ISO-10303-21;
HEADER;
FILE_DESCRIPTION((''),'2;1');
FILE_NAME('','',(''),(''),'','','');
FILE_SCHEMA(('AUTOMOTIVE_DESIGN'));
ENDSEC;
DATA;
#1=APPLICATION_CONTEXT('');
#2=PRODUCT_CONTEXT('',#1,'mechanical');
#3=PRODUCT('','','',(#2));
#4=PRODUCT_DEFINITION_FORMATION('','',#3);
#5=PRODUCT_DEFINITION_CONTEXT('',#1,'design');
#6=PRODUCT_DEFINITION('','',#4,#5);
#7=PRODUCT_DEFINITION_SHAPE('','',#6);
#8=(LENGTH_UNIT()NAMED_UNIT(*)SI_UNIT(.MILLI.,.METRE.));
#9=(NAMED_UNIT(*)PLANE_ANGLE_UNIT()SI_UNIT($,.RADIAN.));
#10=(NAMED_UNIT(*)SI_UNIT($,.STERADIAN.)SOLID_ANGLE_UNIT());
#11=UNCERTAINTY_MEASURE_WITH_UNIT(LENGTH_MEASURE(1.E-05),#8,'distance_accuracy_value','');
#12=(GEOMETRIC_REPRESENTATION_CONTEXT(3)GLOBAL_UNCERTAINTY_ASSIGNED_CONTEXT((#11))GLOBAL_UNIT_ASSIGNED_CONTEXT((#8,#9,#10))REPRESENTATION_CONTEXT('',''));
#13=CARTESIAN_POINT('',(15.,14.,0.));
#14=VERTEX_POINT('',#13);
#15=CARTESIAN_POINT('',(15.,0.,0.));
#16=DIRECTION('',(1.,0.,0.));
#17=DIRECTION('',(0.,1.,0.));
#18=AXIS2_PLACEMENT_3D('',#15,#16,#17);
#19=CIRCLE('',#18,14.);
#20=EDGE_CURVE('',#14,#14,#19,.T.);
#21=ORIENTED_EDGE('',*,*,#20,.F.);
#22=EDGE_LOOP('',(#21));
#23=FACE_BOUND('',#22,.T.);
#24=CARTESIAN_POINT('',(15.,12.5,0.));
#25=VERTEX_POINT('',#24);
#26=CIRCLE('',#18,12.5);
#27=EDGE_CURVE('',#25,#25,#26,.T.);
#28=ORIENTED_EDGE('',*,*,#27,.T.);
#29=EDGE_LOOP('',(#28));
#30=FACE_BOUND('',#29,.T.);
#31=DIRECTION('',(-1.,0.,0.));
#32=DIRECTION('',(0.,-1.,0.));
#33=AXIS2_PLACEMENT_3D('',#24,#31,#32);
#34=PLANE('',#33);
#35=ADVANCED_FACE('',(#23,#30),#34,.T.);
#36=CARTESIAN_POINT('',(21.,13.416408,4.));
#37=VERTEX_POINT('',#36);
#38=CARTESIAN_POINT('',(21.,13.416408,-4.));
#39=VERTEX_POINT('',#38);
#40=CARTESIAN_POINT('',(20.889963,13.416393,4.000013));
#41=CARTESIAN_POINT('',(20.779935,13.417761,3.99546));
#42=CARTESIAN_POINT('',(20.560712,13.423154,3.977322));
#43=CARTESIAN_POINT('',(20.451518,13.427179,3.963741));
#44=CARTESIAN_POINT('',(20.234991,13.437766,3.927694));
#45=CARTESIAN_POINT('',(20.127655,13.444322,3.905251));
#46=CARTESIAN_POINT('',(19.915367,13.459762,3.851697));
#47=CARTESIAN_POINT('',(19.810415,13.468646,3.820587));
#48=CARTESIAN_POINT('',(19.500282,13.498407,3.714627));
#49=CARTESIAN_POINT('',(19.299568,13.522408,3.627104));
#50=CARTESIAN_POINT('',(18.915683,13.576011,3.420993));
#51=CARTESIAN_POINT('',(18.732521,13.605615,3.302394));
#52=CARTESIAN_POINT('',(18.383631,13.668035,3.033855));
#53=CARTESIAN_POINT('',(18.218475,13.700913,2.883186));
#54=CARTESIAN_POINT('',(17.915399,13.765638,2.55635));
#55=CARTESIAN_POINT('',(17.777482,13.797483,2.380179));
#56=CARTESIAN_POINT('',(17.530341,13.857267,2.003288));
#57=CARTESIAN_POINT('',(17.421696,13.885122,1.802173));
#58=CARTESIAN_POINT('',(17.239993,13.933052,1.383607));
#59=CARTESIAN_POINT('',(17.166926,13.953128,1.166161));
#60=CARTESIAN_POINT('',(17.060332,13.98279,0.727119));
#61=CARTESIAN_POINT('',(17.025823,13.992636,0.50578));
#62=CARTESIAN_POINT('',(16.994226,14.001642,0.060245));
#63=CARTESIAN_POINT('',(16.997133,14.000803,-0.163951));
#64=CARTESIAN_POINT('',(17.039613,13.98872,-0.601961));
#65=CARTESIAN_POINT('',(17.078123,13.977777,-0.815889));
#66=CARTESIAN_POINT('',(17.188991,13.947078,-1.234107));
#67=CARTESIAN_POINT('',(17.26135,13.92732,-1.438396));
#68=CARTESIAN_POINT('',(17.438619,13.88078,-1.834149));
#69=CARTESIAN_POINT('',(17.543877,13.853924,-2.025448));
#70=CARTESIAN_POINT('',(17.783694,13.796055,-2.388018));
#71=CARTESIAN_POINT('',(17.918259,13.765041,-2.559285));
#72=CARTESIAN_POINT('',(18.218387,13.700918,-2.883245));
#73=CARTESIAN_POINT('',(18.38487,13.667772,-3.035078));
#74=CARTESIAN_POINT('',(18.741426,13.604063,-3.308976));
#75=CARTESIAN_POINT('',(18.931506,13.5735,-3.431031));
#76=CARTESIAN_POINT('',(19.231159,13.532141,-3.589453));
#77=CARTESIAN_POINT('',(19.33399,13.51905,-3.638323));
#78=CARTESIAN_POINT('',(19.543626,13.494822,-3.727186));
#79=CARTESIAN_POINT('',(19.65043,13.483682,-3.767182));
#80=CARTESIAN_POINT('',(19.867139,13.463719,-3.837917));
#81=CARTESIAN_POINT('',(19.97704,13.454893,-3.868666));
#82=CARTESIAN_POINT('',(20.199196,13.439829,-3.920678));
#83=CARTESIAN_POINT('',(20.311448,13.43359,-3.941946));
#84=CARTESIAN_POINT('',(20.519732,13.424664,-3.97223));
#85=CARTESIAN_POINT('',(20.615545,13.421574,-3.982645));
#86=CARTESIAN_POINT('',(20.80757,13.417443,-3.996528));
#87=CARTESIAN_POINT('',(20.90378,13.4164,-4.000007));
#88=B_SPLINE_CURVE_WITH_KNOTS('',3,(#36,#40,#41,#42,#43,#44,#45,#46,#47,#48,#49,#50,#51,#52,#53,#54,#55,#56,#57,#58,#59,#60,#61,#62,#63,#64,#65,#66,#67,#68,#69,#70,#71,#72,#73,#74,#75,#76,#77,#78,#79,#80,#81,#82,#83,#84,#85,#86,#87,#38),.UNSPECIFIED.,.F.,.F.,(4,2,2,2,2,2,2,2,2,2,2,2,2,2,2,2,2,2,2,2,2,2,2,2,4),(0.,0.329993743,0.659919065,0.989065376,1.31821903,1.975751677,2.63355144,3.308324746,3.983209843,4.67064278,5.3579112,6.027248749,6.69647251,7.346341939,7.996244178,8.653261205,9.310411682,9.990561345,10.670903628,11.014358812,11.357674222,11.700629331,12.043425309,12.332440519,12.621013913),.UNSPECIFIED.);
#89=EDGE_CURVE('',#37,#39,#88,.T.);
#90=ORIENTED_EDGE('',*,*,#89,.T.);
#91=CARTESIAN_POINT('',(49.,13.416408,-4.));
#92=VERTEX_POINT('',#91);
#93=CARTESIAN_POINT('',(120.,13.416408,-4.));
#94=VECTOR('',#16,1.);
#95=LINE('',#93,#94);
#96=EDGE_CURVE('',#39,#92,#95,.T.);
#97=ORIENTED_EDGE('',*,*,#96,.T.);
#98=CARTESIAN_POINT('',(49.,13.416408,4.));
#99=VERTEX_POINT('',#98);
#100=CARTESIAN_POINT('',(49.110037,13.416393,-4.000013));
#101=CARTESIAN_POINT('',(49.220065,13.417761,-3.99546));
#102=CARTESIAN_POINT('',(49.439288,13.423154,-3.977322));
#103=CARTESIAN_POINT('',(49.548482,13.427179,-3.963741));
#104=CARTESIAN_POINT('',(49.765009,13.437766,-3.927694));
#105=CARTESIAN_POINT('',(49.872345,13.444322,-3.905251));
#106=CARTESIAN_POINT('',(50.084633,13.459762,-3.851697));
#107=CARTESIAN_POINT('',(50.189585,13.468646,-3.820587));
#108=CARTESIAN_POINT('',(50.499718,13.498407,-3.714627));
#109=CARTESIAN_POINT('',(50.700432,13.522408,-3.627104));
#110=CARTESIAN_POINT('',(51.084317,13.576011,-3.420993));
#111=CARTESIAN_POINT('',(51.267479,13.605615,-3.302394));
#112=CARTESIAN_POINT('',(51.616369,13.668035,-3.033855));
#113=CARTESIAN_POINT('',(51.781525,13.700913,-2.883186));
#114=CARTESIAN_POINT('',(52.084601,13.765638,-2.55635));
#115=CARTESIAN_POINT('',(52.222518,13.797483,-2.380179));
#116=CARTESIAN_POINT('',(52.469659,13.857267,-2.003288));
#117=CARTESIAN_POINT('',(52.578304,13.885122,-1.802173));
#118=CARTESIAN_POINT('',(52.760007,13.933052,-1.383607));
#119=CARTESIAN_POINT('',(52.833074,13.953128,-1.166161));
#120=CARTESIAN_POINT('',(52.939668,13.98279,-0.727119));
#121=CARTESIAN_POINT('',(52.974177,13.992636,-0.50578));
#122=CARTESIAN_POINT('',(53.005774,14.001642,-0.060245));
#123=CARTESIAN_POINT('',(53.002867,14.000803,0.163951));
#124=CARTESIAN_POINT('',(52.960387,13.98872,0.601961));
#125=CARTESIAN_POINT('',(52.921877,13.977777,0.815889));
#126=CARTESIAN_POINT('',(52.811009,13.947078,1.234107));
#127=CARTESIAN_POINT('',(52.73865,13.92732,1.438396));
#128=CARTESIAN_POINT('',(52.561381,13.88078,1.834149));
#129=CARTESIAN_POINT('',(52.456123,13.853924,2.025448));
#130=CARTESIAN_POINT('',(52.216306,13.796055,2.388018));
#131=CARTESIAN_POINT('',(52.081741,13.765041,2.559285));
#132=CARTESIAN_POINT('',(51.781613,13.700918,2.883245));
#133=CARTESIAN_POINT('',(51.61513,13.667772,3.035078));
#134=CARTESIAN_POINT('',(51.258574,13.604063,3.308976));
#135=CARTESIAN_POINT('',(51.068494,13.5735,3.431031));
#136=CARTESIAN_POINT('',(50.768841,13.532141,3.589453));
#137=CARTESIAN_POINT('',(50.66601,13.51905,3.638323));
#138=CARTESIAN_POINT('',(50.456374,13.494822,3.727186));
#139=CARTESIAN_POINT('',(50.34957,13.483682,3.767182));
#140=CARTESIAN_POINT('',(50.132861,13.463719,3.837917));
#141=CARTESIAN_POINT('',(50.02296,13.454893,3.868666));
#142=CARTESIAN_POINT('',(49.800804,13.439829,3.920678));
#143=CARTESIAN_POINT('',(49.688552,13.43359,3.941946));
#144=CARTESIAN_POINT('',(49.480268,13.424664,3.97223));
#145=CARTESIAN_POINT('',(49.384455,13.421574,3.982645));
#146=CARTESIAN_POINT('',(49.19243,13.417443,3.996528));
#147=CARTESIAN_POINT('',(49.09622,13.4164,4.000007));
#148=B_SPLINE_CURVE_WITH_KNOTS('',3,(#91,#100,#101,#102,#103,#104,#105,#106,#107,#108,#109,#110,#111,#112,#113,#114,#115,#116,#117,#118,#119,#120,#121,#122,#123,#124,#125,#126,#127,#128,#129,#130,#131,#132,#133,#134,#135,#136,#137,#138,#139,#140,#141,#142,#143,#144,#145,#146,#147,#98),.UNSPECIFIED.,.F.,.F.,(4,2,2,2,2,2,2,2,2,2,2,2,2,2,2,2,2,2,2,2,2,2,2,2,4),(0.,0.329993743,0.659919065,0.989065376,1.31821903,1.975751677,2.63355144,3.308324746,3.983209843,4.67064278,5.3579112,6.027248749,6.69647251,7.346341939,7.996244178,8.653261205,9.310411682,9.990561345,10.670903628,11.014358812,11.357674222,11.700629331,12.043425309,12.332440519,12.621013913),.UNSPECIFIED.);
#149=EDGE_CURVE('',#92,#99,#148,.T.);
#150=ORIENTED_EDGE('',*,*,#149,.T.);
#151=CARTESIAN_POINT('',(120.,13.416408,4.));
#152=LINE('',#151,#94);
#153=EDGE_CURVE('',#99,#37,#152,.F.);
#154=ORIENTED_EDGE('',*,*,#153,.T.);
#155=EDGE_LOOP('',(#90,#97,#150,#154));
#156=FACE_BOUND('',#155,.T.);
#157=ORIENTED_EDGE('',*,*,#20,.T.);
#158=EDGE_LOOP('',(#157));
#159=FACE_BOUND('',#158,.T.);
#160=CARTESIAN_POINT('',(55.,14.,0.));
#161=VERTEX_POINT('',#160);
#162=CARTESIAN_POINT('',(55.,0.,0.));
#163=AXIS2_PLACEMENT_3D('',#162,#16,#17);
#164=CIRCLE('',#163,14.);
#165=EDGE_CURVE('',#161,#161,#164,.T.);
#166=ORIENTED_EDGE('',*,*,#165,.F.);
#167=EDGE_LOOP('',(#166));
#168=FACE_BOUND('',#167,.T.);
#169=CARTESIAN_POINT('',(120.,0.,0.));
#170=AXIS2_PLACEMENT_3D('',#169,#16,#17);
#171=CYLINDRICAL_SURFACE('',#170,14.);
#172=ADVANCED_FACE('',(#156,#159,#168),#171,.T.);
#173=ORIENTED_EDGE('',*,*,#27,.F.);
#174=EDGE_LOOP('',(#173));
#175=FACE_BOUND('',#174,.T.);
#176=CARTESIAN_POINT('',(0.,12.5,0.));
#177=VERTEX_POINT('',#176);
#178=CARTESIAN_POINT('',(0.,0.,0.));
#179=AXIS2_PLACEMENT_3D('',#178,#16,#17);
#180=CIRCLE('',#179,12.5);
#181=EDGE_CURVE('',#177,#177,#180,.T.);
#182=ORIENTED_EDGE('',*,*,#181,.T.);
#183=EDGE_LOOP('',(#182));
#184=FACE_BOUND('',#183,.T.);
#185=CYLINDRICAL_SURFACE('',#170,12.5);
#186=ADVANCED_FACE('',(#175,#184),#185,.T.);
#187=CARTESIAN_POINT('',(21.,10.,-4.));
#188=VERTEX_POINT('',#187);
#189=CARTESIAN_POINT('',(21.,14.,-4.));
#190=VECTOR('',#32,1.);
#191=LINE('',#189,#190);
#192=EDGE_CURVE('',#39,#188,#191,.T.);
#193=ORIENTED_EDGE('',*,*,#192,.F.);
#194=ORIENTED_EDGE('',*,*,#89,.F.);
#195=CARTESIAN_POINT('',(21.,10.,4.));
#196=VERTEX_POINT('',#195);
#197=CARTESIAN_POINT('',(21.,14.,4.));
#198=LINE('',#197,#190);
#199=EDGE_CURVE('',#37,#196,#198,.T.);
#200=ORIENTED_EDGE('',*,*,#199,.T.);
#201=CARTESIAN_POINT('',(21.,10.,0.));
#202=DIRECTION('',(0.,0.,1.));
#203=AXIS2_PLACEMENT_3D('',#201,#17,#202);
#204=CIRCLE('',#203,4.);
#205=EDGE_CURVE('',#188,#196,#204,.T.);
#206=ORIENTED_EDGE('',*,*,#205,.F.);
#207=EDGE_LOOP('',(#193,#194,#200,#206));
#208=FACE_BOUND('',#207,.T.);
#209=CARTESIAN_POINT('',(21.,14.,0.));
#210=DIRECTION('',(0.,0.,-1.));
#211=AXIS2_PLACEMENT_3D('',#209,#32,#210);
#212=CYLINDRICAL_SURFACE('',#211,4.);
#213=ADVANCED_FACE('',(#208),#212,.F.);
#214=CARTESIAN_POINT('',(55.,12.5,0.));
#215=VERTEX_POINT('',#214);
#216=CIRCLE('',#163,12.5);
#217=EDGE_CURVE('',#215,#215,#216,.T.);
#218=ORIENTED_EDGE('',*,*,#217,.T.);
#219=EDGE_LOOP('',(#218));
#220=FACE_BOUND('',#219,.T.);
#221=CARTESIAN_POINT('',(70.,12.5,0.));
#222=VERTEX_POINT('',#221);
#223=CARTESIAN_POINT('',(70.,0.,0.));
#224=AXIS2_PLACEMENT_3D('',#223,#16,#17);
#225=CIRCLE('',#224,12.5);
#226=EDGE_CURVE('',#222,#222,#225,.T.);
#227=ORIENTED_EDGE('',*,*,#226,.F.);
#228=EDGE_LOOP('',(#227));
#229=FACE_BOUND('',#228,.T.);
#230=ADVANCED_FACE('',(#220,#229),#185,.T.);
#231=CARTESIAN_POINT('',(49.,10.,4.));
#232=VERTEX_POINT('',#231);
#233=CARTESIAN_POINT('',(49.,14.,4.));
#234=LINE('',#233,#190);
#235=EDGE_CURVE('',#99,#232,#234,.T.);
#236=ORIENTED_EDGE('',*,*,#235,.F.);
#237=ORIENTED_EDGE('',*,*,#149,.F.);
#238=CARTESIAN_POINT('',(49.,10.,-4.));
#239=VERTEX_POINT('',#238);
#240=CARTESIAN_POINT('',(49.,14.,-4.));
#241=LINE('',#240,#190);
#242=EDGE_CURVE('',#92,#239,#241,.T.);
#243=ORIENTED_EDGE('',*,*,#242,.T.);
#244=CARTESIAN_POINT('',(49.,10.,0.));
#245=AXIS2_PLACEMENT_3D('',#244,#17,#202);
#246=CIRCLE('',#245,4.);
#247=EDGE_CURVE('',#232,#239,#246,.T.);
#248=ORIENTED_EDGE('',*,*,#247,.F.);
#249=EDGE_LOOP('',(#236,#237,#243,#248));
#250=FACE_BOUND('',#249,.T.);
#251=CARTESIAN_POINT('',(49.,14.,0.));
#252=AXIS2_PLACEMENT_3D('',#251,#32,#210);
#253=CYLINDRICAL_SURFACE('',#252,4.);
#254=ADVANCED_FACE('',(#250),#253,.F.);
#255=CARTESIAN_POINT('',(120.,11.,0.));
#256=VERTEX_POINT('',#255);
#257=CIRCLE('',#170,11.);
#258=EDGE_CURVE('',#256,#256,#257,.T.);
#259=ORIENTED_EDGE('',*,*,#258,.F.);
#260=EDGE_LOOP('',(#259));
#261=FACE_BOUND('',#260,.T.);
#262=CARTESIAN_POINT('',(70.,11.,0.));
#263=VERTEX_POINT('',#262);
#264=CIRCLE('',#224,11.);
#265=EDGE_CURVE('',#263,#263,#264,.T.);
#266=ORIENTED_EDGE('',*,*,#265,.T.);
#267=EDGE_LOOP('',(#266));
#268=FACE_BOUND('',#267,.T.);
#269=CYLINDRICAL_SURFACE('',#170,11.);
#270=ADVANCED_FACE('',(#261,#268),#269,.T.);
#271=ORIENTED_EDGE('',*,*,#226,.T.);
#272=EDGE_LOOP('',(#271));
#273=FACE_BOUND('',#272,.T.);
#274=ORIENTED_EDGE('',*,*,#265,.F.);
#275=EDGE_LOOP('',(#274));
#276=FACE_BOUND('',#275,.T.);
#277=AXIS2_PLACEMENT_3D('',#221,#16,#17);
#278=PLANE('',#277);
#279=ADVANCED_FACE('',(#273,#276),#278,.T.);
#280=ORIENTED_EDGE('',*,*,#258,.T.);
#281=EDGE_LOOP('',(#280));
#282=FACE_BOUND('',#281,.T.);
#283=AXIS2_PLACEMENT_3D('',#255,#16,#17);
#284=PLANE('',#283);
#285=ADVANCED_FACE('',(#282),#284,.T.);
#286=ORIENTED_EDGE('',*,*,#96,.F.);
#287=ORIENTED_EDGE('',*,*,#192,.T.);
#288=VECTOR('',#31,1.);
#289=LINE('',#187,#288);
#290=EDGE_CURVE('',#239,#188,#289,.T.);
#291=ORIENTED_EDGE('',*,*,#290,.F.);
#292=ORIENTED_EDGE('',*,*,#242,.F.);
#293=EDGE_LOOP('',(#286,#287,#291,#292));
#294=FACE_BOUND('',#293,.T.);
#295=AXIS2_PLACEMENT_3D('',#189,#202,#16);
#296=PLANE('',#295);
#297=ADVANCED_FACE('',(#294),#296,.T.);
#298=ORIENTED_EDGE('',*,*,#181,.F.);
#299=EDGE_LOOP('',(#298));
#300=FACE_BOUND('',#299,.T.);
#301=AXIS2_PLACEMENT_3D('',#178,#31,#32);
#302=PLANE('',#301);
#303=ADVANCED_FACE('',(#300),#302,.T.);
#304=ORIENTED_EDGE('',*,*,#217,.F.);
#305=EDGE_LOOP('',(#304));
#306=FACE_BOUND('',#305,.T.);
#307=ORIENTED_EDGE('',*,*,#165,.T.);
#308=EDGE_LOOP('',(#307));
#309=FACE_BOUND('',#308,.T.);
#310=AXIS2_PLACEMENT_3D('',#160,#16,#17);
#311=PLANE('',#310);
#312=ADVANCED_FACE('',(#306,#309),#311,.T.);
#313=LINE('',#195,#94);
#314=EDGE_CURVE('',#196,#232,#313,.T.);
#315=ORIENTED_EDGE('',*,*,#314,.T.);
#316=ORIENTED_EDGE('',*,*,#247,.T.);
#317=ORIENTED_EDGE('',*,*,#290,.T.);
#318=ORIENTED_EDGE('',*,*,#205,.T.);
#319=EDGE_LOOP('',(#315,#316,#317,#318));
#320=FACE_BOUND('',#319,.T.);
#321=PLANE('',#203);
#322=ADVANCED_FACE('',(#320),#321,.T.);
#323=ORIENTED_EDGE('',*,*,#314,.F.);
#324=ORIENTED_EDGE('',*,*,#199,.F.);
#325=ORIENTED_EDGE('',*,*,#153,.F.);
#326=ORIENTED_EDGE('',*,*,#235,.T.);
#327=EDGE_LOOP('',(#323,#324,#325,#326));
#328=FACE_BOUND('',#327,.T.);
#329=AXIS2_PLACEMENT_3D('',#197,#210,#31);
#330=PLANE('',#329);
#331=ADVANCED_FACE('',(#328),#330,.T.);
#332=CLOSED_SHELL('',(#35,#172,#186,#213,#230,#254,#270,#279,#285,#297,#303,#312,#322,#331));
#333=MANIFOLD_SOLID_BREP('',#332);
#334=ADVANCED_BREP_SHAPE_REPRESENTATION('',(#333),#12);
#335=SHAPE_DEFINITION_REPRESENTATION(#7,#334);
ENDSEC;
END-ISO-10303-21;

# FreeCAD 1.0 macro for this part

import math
import FreeCAD as App
import Part
import Sketcher

V = App.Vector

doc = App.newDocument("Part")
body = doc.addObject("PartDesign::Body", "Body")

sketch1 = body.newObject("Sketcher::SketchObject", "Sketch")
sketch1.AttachmentSupport = (doc.getObject("XY_Plane"), [""])
sketch1.MapMode = "FlatFace"
sketch1.addGeometry([
    Part.LineSegment(V(0, 12.5, 0), V(0, 0, 0)),
    Part.LineSegment(V(0, 0, 0), V(120, 0, 0)),
    Part.LineSegment(V(120, 0, 0), V(120, 11, 0)),
    Part.LineSegment(V(120, 11, 0), V(70, 11, 0)),
    Part.LineSegment(V(70, 11, 0), V(70, 12.5, 0)),
    Part.LineSegment(V(70, 12.5, 0), V(55, 12.5, 0)),
    Part.LineSegment(V(55, 12.5, 0), V(55, 14, 0)),
    Part.LineSegment(V(55, 14, 0), V(15, 14, 0)),
    Part.LineSegment(V(15, 14, 0), V(15, 12.5, 0)),
    Part.LineSegment(V(15, 12.5, 0), V(0, 12.5, 0)),
], False)
sketch1.addConstraint([
    Sketcher.Constraint("Coincident", 0, 2, 1, 1),
    Sketcher.Constraint("Coincident", 1, 2, 2, 1),
    Sketcher.Constraint("Coincident", 2, 2, 3, 1),
    Sketcher.Constraint("Coincident", 3, 2, 4, 1),
    Sketcher.Constraint("Coincident", 4, 2, 5, 1),
    Sketcher.Constraint("Coincident", 5, 2, 6, 1),
    Sketcher.Constraint("Coincident", 6, 2, 7, 1),
    Sketcher.Constraint("Coincident", 7, 2, 8, 1),
    Sketcher.Constraint("Coincident", 8, 2, 9, 1),
    Sketcher.Constraint("Coincident", 9, 2, 0, 1),
    Sketcher.Constraint("Vertical", 0),
    Sketcher.Constraint("Horizontal", 1),
    Sketcher.Constraint("Vertical", 2),
    Sketcher.Constraint("Horizontal", 3),
    Sketcher.Constraint("Vertical", 4),
    Sketcher.Constraint("Horizontal", 5),
    Sketcher.Constraint("Vertical", 6),
    Sketcher.Constraint("Horizontal", 7),
    Sketcher.Constraint("Vertical", 8),
    Sketcher.Constraint("Horizontal", 9),
    Sketcher.Constraint("Coincident", 0, 2, -1, 1),
    Sketcher.Constraint("Horizontal", 5, 2, 8, 2),
    Sketcher.Constraint("Equal", 5, 9),
    Sketcher.Constraint("Equal", 4, 6),
    Sketcher.Constraint("DistanceX", 1, 1, 1, 2, 120.0),
    Sketcher.Constraint("DistanceX", 3, 2, 3, 1, 50.0),
    Sketcher.Constraint("DistanceX", 5, 2, 5, 1, 15.0),
    Sketcher.Constraint("DistanceY", 2, 1, 2, 2, 11.0),
    Sketcher.Constraint("DistanceY", 0, 2, 0, 1, 12.5),
])
revolution = body.newObject("PartDesign::Revolution", "Revolution")
revolution.Profile = sketch1
revolution.ReferenceAxis = (sketch1, ["H_Axis"])
revolution.Angle = 360

sketch2 = body.newObject("Sketcher::SketchObject", "Sketch001")
sketch2.AttachmentSupport = (doc.getObject("XZ_Plane"), [""])
sketch2.MapMode = "FlatFace"
sketch2.AttachmentOffset = App.Placement(V(0, 0, -10), App.Rotation())
sketch2.addGeometry([
    Part.LineSegment(V(49, -4, 0), V(21, -4, 0)),
    Part.ArcOfCircle(Part.Circle(V(21, 0, 0), V(0, 0, 1), 4), math.radians(90), math.radians(270)),
    Part.LineSegment(V(21, 4, 0), V(49, 4, 0)),
    Part.ArcOfCircle(Part.Circle(V(49, 0, 0), V(0, 0, 1), 4), math.radians(-90), math.radians(90)),
], False)
sketch2.addConstraint([
    Sketcher.Constraint("Tangent", 0, 2, 1, 2),
    Sketcher.Constraint("Tangent", 1, 1, 2, 1),
    Sketcher.Constraint("Tangent", 2, 2, 3, 2),
    Sketcher.Constraint("Tangent", 3, 1, 0, 1),
    Sketcher.Constraint("Horizontal", 0),
    Sketcher.Constraint("Horizontal", 2),
    Sketcher.Constraint("PointOnObject", 1, 3, -1),
    Sketcher.Constraint("Radius", 1, 4.0),
    Sketcher.Constraint("DistanceX", 0, 2, 0, 1, 28.0),
    Sketcher.Constraint("DistanceX", -1, 1, 1, 3, 21.0),
])
pocket1 = body.newObject("PartDesign::Pocket", "Pocket")
pocket1.Profile = sketch2
pocket1.Type = "ThroughAll"

doc.recompute()
